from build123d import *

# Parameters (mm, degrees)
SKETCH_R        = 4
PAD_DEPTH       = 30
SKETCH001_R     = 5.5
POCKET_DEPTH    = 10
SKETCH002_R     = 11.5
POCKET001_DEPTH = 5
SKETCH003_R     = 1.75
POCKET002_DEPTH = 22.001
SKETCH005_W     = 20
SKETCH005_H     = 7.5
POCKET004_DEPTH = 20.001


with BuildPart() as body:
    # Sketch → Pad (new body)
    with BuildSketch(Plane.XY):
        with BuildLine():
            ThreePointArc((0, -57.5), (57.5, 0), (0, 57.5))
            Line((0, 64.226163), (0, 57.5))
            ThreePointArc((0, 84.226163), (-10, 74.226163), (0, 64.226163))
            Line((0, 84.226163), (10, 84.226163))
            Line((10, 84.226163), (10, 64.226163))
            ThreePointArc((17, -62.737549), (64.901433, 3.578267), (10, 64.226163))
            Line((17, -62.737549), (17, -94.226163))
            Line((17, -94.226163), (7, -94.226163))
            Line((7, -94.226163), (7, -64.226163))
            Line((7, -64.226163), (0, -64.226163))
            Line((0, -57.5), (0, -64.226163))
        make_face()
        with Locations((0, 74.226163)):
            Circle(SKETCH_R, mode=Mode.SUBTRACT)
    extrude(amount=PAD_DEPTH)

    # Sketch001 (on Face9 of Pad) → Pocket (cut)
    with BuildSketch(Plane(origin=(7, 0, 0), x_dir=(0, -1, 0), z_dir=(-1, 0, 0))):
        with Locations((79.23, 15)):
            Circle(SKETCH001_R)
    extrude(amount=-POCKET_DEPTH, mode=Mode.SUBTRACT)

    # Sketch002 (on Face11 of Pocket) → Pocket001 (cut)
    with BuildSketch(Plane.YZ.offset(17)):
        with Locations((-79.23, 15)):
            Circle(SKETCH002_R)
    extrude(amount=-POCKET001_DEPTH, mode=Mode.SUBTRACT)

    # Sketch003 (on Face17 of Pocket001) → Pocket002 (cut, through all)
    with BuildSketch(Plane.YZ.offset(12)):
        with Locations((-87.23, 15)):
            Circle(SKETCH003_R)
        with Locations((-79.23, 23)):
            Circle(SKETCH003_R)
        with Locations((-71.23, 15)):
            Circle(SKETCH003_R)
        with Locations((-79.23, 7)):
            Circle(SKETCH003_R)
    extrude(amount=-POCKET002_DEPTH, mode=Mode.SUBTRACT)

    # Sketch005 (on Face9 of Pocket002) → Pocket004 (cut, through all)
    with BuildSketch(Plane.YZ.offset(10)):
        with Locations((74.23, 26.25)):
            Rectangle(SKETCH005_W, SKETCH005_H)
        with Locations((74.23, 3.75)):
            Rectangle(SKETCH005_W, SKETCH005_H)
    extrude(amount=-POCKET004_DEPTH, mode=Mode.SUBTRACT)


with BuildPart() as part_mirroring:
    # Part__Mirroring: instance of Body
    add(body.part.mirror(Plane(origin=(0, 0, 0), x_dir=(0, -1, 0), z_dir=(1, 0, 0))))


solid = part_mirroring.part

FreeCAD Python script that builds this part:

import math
import FreeCAD as App
import Part
import Sketcher

doc = App.newDocument("Part")
body = doc.addObject("PartDesign::Body", "Body")

# Sketch on XY plane
sketch1 = doc.addObject("Sketcher::SketchObject", "Sketch")
body.addObject(sketch1)
sketch1.AttachmentSupport = (doc.XY_Plane, [""])
sketch1.MapMode = "FlatFace"
sketch1.addGeometry(Part.ArcOfCircle(Part.Circle(App.Vector(0, 0, 0), App.Vector(0, 0, 1), 57.5), math.radians(-90), math.radians(90)), False)
sketch1.addGeometry(Part.LineSegment(App.Vector(0, -57.5, 0), App.Vector(0, -64.226163, 0)), False)
sketch1.addGeometry(Part.LineSegment(App.Vector(0, -64.226163, 0), App.Vector(7, -64.226163, 0)), False)
sketch1.addGeometry(Part.LineSegment(App.Vector(7, -64.226163, 0), App.Vector(7, -94.226163, 0)), False)
sketch1.addGeometry(Part.LineSegment(App.Vector(7, -94.226163, 0), App.Vector(17, -94.226163, 0)), False)
sketch1.addGeometry(Part.LineSegment(App.Vector(17, -94.226163, 0), App.Vector(17, -62.737549, 0)), False)
sketch1.addGeometry(Part.ArcOfCircle(Part.Circle(App.Vector(0, 0, 0), App.Vector(0, 0, 1), 65), math.radians(-74.838631), math.radians(81.150117)), False)
sketch1.addGeometry(Part.LineSegment(App.Vector(10, 64.226163, 0), App.Vector(10, 84.226163, 0)), False)
sketch1.addGeometry(Part.LineSegment(App.Vector(10, 84.226163, 0), App.Vector(0, 84.226163, 0)), False)
sketch1.addGeometry(Part.ArcOfCircle(Part.Circle(App.Vector(0, 74.226163, 0), App.Vector(0, 0, 1), 10), math.radians(90), math.radians(270)), False)
sketch1.addGeometry(Part.LineSegment(App.Vector(0, 64.226163, 0), App.Vector(0, 57.5, 0)), False)
sketch1.addGeometry(Part.Circle(App.Vector(0, 74.226163, 0), App.Vector(0, 0, 1), 4), False)
sketch1.addConstraint(Sketcher.Constraint("Coincident", 0, 1, 1, 1))
sketch1.addConstraint(Sketcher.Constraint("Coincident", 1, 2, 2, 1))
sketch1.addConstraint(Sketcher.Constraint("Coincident", 2, 2, 3, 1))
sketch1.addConstraint(Sketcher.Constraint("Coincident", 3, 2, 4, 1))
sketch1.addConstraint(Sketcher.Constraint("Coincident", 4, 2, 5, 1))
sketch1.addConstraint(Sketcher.Constraint("Coincident", 5, 2, 6, 1))
sketch1.addConstraint(Sketcher.Constraint("Coincident", 6, 2, 7, 1))
sketch1.addConstraint(Sketcher.Constraint("Coincident", 7, 2, 8, 1))
sketch1.addConstraint(Sketcher.Constraint("Tangent", 8, 2, 9, 1))
sketch1.addConstraint(Sketcher.Constraint("Coincident", 9, 2, 10, 1))
sketch1.addConstraint(Sketcher.Constraint("Coincident", 10, 2, 0, 2))
sketch1.addConstraint(Sketcher.Constraint("Vertical", 1))
sketch1.addConstraint(Sketcher.Constraint("Horizontal", 2))
sketch1.addConstraint(Sketcher.Constraint("Vertical", 3))
sketch1.addConstraint(Sketcher.Constraint("Horizontal", 4))
sketch1.addConstraint(Sketcher.Constraint("Vertical", 5))
sketch1.addConstraint(Sketcher.Constraint("Vertical", 7))
sketch1.addConstraint(Sketcher.Constraint("Horizontal", 8))
sketch1.addConstraint(Sketcher.Constraint("Vertical", 10))
sketch1.addConstraint(Sketcher.Constraint("Coincident", 0, 3, -1, 1))
sketch1.addConstraint(Sketcher.Constraint("Coincident", 6, 3, -1, 1))
sketch1.addConstraint(Sketcher.Constraint("Coincident", 11, 3, 9, 3))
sketch1.addConstraint(Sketcher.Constraint("Symmetric", 1, 2, 9, 2, -1, 1))
sketch1.addConstraint(Sketcher.Constraint("PointOnObject", 9, 3, -2))
sketch1.addConstraint(Sketcher.Constraint("PointOnObject", 0, 1, -2))
sketch1.addConstraint(Sketcher.Constraint("Horizontal", 6, 2, 9, 2))
sketch1.addConstraint(Sketcher.Constraint("Equal", 4, 8))
sketch1.addConstraint(Sketcher.Constraint("Diameter", 11, 8.0))
sketch1.addConstraint(Sketcher.Constraint("Radius", 6, 65.0))
sketch1.addConstraint(Sketcher.Constraint("Radius", 9, 10.0))
sketch1.addConstraint(Sketcher.Constraint("Radius", 0, 57.5))
sketch1.addConstraint(Sketcher.Constraint("DistanceX", 2, 1, 2, 2, 7.0))
sketch1.addConstraint(Sketcher.Constraint("DistanceX", 4, 1, 4, 2, 10.0))
sketch1.addConstraint(Sketcher.Constraint("DistanceY", 3, 2, 3, 1, 30.0))
pad1 = doc.addObject("PartDesign::Pad", "Pad")
body.addObject(pad1)
pad1.Profile = sketch1
pad1.Length = 30

# Sketch on YZ plane
sketch2 = doc.addObject("Sketcher::SketchObject", "Sketch001")
body.addObject(sketch2)
sketch2.AttachmentSupport = (doc.YZ_Plane, [""])
sketch2.MapMode = "FlatFace"
sketch2.AttachmentOffset = App.Placement(App.Vector(0, 0, 7), App.Rotation())
sketch2.addGeometry(Part.Circle(App.Vector(-79.23, 15, 0), App.Vector(0, 0, 1), 5.5), False)
sketch2.addConstraint(Sketcher.Constraint("Diameter", 0, 11.0))
sketch2.addConstraint(Sketcher.Constraint("DistanceY", -1, 1, 0, 3, 15.0))
sketch2.addConstraint(Sketcher.Constraint("DistanceX", 0, 3, -1, 1, 79.23))
pocket1 = doc.addObject("PartDesign::Pocket", "Pocket")
body.addObject(pocket1)
pocket1.Profile = sketch2
pocket1.Length = 10
pocket1.Reversed = True

# Sketch on YZ plane
sketch3 = doc.addObject("Sketcher::SketchObject", "Sketch002")
body.addObject(sketch3)
sketch3.AttachmentSupport = (doc.YZ_Plane, [""])
sketch3.MapMode = "FlatFace"
sketch3.AttachmentOffset = App.Placement(App.Vector(0, 0, 17), App.Rotation())
sketch3.addGeometry(Part.Circle(App.Vector(-79.23, 15, 0), App.Vector(0, 0, 1), 11.5), False)
sketch3.addConstraint(Sketcher.Constraint("Diameter", 0, 23.0))
sketch3.addConstraint(Sketcher.Constraint("DistanceY", -1, 1, 0, 3, 15.0))
sketch3.addConstraint(Sketcher.Constraint("DistanceX", 0, 3, -1, 1, 79.23))
pocket2 = doc.addObject("PartDesign::Pocket", "Pocket001")
body.addObject(pocket2)
pocket2.Profile = sketch3
pocket2.Length = 5

# Sketch on YZ plane
sketch4 = doc.addObject("Sketcher::SketchObject", "Sketch003")
body.addObject(sketch4)
sketch4.AttachmentSupport = (doc.YZ_Plane, [""])
sketch4.MapMode = "FlatFace"
sketch4.AttachmentOffset = App.Placement(App.Vector(0, 0, 12), App.Rotation())
sketch4.addGeometry(Part.Circle(App.Vector(-87.23, 15, 0), App.Vector(0, 0, 1), 1.75), False)
sketch4.addGeometry(Part.Circle(App.Vector(-79.23, 23, 0), App.Vector(0, 0, 1), 1.75), False)
sketch4.addGeometry(Part.Circle(App.Vector(-71.23, 15, 0), App.Vector(0, 0, 1), 1.75), False)
sketch4.addGeometry(Part.Circle(App.Vector(-79.23, 7, 0), App.Vector(0, 0, 1), 1.75), False)
sketch4.addConstraint(Sketcher.Constraint("Equal", 0, 1))
sketch4.addConstraint(Sketcher.Constraint("Equal", 1, 2))
sketch4.addConstraint(Sketcher.Constraint("Equal", 2, 3))
sketch4.addConstraint(Sketcher.Constraint("Horizontal", 0, 3, 2, 3))
sketch4.addConstraint(Sketcher.Constraint("Vertical", 1, 3, 3, 3))
sketch4.addConstraint(Sketcher.Constraint("Diameter", 0, 3.5))
sketch4.addConstraint(Sketcher.Constraint("DistanceY", -1, 1, 0, 3, 15.0))
sketch4.addConstraint(Sketcher.Constraint("DistanceY", -1, 1, 1, 3, 23.0))
sketch4.addConstraint(Sketcher.Constraint("DistanceY", -1, 1, 3, 3, 7.0))
sketch4.addConstraint(Sketcher.Constraint("DistanceX", 0, 3, 1, 3, 8.0))
sketch4.addConstraint(Sketcher.Constraint("DistanceX", 1, 3, 2, 3, 8.0))
sketch4.addConstraint(Sketcher.Constraint("DistanceX", 0, 3, -1, 1, 87.23))
pocket3 = doc.addObject("PartDesign::Pocket", "Pocket002")
body.addObject(pocket3)
pocket3.Profile = sketch4
pocket3.Type = "ThroughAll"

# Sketch on YZ plane
sketch5 = doc.addObject("Sketcher::SketchObject", "Sketch004")
body.addObject(sketch5)
sketch5.AttachmentSupport = (doc.YZ_Plane, [""])
sketch5.MapMode = "FlatFace"
sketch5.AttachmentOffset = App.Placement(App.Vector(0, 0, 10), App.Rotation())
sketch5.addGeometry(Part.LineSegment(App.Vector(64.23, 30, 0), App.Vector(64.23, 22.5, 0)), False)
sketch5.addGeometry(Part.LineSegment(App.Vector(64.23, 22.5, 0), App.Vector(84.23, 22.5, 0)), False)
sketch5.addGeometry(Part.LineSegment(App.Vector(84.23, 22.5, 0), App.Vector(84.23, 30, 0)), False)
sketch5.addGeometry(Part.LineSegment(App.Vector(84.23, 30, 0), App.Vector(64.23, 30, 0)), False)
sketch5.addGeometry(Part.LineSegment(App.Vector(64.23, 7.5, 0), App.Vector(64.23, 0, 0)), False)
sketch5.addGeometry(Part.LineSegment(App.Vector(64.23, 0, 0), App.Vector(84.23, 0, 0)), False)
sketch5.addGeometry(Part.LineSegment(App.Vector(84.23, 0, 0), App.Vector(84.23, 7.5, 0)), False)
sketch5.addGeometry(Part.LineSegment(App.Vector(84.23, 7.5, 0), App.Vector(64.23, 7.5, 0)), False)
sketch5.addConstraint(Sketcher.Constraint("Coincident", 0, 2, 1, 1))
sketch5.addConstraint(Sketcher.Constraint("Coincident", 1, 2, 2, 1))
sketch5.addConstraint(Sketcher.Constraint("Coincident", 2, 2, 3, 1))
sketch5.addConstraint(Sketcher.Constraint("Coincident", 3, 2, 0, 1))
sketch5.addConstraint(Sketcher.Constraint("Coincident", 4, 2, 5, 1))
sketch5.addConstraint(Sketcher.Constraint("Coincident", 5, 2, 6, 1))
sketch5.addConstraint(Sketcher.Constraint("Coincident", 6, 2, 7, 1))
sketch5.addConstraint(Sketcher.Constraint("Coincident", 7, 2, 4, 1))
sketch5.addConstraint(Sketcher.Constraint("Vertical", 0))
sketch5.addConstraint(Sketcher.Constraint("Horizontal", 1))
sketch5.addConstraint(Sketcher.Constraint("Vertical", 2))
sketch5.addConstraint(Sketcher.Constraint("Horizontal", 3))
sketch5.addConstraint(Sketcher.Constraint("Vertical", 4))
sketch5.addConstraint(Sketcher.Constraint("Horizontal", 5))
sketch5.addConstraint(Sketcher.Constraint("Vertical", 6))
sketch5.addConstraint(Sketcher.Constraint("Horizontal", 7))
sketch5.addConstraint(Sketcher.Constraint("PointOnObject", 4, 2, -1))
sketch5.addConstraint(Sketcher.Constraint("Vertical", 3, 2, 4, 2))
sketch5.addConstraint(Sketcher.Constraint("Vertical", 2, 2, 5, 2))
sketch5.addConstraint(Sketcher.Constraint("Equal", 2, 4))
sketch5.addConstraint(Sketcher.Constraint("DistanceX", 1, 1, 1, 2, 20.0))
sketch5.addConstraint(Sketcher.Constraint("DistanceY", 0, 2, 0, 1, 7.5))
sketch5.addConstraint(Sketcher.Constraint("DistanceY", -1, 1, 2, 2, 30.0))
sketch5.addConstraint(Sketcher.Constraint("DistanceX", -1, 1, 0, 2, 64.23))
pocket4 = doc.addObject("PartDesign::Pocket", "Pocket003")
body.addObject(pocket4)
pocket4.Profile = sketch5
pocket4.Type = "ThroughAll"
body2 = doc.addObject("PartDesign::Body", "Body001")
doc.recompute()

mirroring = doc.addObject("Part::Mirroring", "Mirroring")
mirroring.Source = body
mirroring.Base = App.Vector(0, 0, 0)
mirroring.Normal = App.Vector(1, 0, 0)
body2.BaseFeature = mirroring
doc.recompute()
body.Visibility = False
mirroring.Visibility = False

doc.recompute()
